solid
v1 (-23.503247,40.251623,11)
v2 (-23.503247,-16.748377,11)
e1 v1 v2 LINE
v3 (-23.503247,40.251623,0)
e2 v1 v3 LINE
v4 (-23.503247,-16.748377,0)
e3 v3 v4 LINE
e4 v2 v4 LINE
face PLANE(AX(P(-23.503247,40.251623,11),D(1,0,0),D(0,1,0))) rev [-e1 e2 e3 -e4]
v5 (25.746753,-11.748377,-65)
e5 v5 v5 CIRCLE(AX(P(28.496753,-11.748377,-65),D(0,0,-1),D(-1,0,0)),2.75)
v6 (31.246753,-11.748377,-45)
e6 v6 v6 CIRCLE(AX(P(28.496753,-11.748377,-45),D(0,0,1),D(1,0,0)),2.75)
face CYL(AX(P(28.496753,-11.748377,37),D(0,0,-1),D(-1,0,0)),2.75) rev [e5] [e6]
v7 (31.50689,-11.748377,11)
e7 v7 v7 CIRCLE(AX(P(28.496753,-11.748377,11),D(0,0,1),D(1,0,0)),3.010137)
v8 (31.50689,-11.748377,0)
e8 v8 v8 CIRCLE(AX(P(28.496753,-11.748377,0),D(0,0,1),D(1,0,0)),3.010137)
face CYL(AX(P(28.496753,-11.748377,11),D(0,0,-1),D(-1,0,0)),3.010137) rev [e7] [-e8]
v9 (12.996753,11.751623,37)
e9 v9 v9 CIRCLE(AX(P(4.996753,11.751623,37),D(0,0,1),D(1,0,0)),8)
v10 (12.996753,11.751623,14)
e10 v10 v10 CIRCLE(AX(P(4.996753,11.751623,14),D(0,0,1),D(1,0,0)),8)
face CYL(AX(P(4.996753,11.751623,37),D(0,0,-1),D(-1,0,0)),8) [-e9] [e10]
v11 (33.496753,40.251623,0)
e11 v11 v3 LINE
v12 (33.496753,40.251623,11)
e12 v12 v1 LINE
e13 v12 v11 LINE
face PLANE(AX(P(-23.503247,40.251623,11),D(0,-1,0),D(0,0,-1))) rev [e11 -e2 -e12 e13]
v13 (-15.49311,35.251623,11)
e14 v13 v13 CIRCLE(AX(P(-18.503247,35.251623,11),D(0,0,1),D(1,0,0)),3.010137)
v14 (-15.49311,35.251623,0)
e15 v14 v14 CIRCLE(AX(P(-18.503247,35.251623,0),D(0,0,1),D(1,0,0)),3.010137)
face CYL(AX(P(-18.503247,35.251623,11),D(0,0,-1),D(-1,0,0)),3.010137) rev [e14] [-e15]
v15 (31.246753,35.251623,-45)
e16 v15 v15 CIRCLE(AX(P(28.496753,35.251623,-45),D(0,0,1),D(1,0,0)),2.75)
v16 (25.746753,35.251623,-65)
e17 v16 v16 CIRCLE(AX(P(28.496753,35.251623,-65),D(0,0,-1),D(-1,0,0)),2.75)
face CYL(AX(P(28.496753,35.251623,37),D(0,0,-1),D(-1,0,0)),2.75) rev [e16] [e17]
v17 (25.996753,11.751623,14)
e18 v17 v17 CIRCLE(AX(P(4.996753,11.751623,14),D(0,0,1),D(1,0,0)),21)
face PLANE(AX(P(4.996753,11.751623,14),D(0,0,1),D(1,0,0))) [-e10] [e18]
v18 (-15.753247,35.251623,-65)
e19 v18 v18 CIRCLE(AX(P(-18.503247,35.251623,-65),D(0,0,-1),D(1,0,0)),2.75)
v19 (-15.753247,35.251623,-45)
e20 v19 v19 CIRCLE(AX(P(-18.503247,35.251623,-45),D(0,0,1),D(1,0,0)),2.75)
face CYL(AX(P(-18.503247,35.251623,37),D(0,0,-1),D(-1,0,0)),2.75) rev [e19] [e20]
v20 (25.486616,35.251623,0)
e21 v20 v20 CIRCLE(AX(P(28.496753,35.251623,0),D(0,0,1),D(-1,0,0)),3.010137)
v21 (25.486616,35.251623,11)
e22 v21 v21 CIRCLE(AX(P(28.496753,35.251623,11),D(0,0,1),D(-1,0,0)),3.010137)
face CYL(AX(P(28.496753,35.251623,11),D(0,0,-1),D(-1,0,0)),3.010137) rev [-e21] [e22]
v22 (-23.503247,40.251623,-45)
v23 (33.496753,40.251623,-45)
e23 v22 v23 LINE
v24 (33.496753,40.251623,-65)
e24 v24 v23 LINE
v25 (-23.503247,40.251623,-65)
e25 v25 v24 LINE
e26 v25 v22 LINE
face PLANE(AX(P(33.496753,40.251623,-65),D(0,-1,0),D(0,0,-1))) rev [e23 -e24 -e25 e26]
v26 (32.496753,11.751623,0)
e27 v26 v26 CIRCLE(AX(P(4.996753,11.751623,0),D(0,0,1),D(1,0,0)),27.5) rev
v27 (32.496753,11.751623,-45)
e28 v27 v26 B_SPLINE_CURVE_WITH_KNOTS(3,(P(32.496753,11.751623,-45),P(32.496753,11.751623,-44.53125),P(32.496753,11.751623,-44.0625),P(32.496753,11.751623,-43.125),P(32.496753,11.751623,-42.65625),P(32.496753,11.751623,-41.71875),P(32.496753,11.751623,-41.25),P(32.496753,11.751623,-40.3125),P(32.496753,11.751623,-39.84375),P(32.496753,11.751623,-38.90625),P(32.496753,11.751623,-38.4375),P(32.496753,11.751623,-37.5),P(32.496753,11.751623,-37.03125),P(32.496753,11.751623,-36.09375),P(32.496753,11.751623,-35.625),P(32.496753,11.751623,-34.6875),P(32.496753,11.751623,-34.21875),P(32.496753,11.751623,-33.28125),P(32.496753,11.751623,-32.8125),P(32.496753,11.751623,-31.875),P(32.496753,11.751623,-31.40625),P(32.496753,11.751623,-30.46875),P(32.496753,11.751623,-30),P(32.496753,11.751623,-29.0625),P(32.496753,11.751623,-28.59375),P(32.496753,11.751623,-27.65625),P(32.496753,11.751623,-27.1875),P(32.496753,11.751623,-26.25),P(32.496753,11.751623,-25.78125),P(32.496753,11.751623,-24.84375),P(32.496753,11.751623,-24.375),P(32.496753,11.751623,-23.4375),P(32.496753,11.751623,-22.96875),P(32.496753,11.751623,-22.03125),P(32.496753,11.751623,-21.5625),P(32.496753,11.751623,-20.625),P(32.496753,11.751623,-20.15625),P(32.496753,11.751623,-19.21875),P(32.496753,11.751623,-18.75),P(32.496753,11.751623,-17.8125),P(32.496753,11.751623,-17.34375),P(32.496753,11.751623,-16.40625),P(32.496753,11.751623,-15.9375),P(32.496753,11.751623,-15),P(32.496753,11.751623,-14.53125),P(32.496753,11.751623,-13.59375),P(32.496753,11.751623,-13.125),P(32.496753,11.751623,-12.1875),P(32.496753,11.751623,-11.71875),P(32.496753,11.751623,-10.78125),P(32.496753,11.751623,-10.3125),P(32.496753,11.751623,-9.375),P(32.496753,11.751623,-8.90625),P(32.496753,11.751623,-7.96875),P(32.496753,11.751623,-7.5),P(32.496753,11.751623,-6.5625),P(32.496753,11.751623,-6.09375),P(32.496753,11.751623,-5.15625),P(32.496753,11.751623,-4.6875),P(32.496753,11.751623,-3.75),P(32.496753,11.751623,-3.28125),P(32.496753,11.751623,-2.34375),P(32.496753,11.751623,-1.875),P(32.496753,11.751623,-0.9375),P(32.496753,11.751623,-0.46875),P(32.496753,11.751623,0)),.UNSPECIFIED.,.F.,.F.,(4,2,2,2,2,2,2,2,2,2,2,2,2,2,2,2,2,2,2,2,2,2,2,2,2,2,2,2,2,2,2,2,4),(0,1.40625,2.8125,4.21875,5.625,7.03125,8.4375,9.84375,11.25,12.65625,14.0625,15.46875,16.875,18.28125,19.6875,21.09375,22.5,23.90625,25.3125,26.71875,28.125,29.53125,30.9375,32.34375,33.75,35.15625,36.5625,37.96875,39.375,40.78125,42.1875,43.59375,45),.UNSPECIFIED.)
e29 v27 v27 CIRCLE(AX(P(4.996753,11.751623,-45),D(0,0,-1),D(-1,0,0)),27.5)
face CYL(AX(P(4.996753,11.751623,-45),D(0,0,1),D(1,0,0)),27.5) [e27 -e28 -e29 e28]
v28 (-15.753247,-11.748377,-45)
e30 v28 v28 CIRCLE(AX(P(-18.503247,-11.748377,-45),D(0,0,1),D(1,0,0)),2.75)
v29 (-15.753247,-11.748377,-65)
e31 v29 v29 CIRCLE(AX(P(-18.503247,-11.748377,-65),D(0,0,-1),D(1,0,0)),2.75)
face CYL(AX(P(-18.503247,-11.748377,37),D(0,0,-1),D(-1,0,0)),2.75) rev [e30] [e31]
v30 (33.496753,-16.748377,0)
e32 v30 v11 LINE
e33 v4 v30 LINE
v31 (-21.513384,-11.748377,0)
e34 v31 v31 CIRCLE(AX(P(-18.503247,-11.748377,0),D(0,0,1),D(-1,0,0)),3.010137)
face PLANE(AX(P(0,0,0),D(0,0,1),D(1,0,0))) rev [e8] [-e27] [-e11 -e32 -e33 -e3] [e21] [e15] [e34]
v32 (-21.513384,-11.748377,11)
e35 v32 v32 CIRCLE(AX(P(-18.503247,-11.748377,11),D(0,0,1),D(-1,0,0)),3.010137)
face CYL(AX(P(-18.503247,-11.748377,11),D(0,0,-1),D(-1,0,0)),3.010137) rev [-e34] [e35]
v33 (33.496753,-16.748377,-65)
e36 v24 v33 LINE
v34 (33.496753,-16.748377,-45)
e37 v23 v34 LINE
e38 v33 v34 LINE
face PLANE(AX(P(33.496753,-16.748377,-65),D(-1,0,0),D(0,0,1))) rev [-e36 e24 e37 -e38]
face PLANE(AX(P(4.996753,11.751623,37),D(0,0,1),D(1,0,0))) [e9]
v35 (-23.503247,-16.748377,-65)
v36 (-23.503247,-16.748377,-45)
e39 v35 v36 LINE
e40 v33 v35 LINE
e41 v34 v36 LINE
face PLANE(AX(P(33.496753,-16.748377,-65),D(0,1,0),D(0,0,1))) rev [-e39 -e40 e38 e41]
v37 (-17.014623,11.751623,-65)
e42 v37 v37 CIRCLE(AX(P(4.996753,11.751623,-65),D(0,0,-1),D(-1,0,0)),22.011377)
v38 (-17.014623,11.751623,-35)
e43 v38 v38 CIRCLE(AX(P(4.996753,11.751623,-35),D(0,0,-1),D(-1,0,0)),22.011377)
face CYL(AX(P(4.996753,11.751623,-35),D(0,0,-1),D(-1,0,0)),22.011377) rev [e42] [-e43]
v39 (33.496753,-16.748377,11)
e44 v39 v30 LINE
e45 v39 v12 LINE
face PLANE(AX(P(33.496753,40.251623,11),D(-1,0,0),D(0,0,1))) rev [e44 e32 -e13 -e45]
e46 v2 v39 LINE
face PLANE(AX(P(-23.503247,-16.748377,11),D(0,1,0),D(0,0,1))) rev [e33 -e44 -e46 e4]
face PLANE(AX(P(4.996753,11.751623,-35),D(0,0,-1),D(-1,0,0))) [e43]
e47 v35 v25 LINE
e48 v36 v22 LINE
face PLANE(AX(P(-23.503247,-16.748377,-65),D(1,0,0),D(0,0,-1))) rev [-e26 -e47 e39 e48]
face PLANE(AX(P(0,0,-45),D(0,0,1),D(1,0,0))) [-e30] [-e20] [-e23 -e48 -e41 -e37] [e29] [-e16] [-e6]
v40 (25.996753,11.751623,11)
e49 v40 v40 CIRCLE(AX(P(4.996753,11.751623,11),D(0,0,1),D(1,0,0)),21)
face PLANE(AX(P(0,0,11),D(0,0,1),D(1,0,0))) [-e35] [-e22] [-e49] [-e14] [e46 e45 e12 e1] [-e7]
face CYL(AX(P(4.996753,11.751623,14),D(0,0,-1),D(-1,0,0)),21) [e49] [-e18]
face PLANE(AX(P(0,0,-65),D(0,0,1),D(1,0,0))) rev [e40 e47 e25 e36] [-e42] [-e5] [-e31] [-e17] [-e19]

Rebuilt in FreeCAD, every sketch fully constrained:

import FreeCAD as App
import Part
import Sketcher
Q = App.Units.Quantity


def add_polygon(sketch, points):
    """Adds a closed chain of lines whose ends are joined by coincident constraints."""
    first, n = sketch.GeometryCount, len(points)
    for a, b in zip(points, points[1:] + points[:1]):
        sketch.addGeometry(Part.LineSegment(App.Vector(*a, 0), App.Vector(*b, 0)), False)
    for i in range(n):
        sketch.addConstraint(Sketcher.Constraint("Coincident", first + i, 2, first + (i + 1) % n, 1))

doc = App.newDocument("Part")
body = doc.addObject("PartDesign::Body", "Body")

# Sketch on XY plane
sketch1 = doc.addObject("Sketcher::SketchObject", "Sketch")
body.addObject(sketch1)
sketch1.AttachmentSupport = (doc.XY_Plane, [""])
sketch1.MapMode = "FlatFace"
add_polygon(sketch1, [(-23.503247, 40.251623), (-23.503247, -16.748377), (33.496753, -16.748377), (33.496753, 40.251623)])  # lines 0-3
sketch1.addGeometry(Part.Circle(App.Vector(-18.503247, -11.748377, 0), App.Vector(0, 0, 1), 3.010137), False)  # 4
sketch1.addGeometry(Part.Circle(App.Vector(28.496753, -11.748377, 0), App.Vector(0, 0, 1), 3.010137), False)  # 5
sketch1.addGeometry(Part.Circle(App.Vector(-18.503247, 35.251623, 0), App.Vector(0, 0, 1), 3.010137), False)  # 6
sketch1.addGeometry(Part.Circle(App.Vector(28.496753, 35.251623, 0), App.Vector(0, 0, 1), 3.010137), False)  # 7
sketch1.addConstraint(Sketcher.Constraint("Vertical", 0))
sketch1.addConstraint(Sketcher.Constraint("Horizontal", 1))
sketch1.addConstraint(Sketcher.Constraint("Vertical", 2))
sketch1.addConstraint(Sketcher.Constraint("Horizontal", 3))
sketch1.addConstraint(Sketcher.Constraint("Equal", 4, 5))
sketch1.addConstraint(Sketcher.Constraint("Equal", 5, 6))
sketch1.addConstraint(Sketcher.Constraint("Equal", 6, 7))
sketch1.addConstraint(Sketcher.Constraint("Horizontal", 4, 3, 5, 3))
sketch1.addConstraint(Sketcher.Constraint("Horizontal", 6, 3, 7, 3))
sketch1.addConstraint(Sketcher.Constraint("Vertical", 4, 3, 6, 3))
sketch1.addConstraint(Sketcher.Constraint("Vertical", 5, 3, 7, 3))
sketch1.addConstraint(Sketcher.Constraint("Equal", 3, 0))
sketch1.addConstraint(Sketcher.Constraint("DistanceX", 1, 1, 1, 2, Q("57 mm")))
sketch1.addConstraint(Sketcher.Constraint("DistanceX", 4, 3, 5, 3, Q("47 mm")))
sketch1.addConstraint(Sketcher.Constraint("DistanceY", 4, 3, 6, 3, Q("47 mm")))
sketch1.addConstraint(Sketcher.Constraint("DistanceX", 0, 2, 4, 3, Q("5 mm")))
sketch1.addConstraint(Sketcher.Constraint("DistanceY", 0, 2, 4, 3, Q("5 mm")))
sketch1.addConstraint(Sketcher.Constraint("Diameter", 4, Q("6.020274 mm")))
sketch1.addConstraint(Sketcher.Constraint("DistanceX", 4, 3, -1, 1, Q("18.503247 mm")))
sketch1.addConstraint(Sketcher.Constraint("DistanceY", 4, 3, -1, 1, Q("11.748377 mm")))
pad1 = doc.addObject("PartDesign::Pad", "Pad")
body.addObject(pad1)
pad1.Profile = sketch1
pad1.Length = 11

# Sketch on XY plane
sketch2 = doc.addObject("Sketcher::SketchObject", "Sketch001")
body.addObject(sketch2)
sketch2.AttachmentSupport = (doc.XY_Plane, [""])
sketch2.MapMode = "FlatFace"
sketch2.AttachmentOffset = App.Placement(App.Vector(0, 0, 11), App.Rotation())
sketch2.addGeometry(Part.Circle(App.Vector(4.996753, 11.751623, 0), App.Vector(0, 0, 1), 21), False)
sketch2.addConstraint(Sketcher.Constraint("Diameter", 0, Q("42 mm")))
sketch2.addConstraint(Sketcher.Constraint("DistanceX", -1, 1, 0, 3, Q("4.996753 mm")))
sketch2.addConstraint(Sketcher.Constraint("DistanceY", -1, 1, 0, 3, Q("11.751623 mm")))
pad2 = doc.addObject("PartDesign::Pad", "Pad001")
body.addObject(pad2)
pad2.Profile = sketch2
pad2.Length = 3

# Sketch on XY plane
sketch3 = doc.addObject("Sketcher::SketchObject", "Sketch002")
body.addObject(sketch3)
sketch3.AttachmentSupport = (doc.XY_Plane, [""])
sketch3.MapMode = "FlatFace"
sketch3.AttachmentOffset = App.Placement(App.Vector(0, 0, 14), App.Rotation())
sketch3.addGeometry(Part.Circle(App.Vector(4.996753, 11.751623, 0), App.Vector(0, 0, 1), 8), False)
sketch3.addConstraint(Sketcher.Constraint("Diameter", 0, Q("16 mm")))
sketch3.addConstraint(Sketcher.Constraint("DistanceX", -1, 1, 0, 3, Q("4.996753 mm")))
sketch3.addConstraint(Sketcher.Constraint("DistanceY", -1, 1, 0, 3, Q("11.751623 mm")))
pad3 = doc.addObject("PartDesign::Pad", "Pad002")
body.addObject(pad3)
pad3.Profile = sketch3
pad3.Length = 23

# Sketch on XY plane
sketch4 = doc.addObject("Sketcher::SketchObject", "Sketch003")
body.addObject(sketch4)
sketch4.AttachmentSupport = (doc.XY_Plane, [""])
sketch4.MapMode = "FlatFace"
sketch4.addGeometry(Part.Circle(App.Vector(4.996753, 11.751623, 0), App.Vector(0, 0, 1), 27.5), False)
sketch4.addConstraint(Sketcher.Constraint("Diameter", 0, Q("55 mm")))
sketch4.addConstraint(Sketcher.Constraint("DistanceX", -1, 1, 0, 3, Q("4.996753 mm")))
sketch4.addConstraint(Sketcher.Constraint("DistanceY", -1, 1, 0, 3, Q("11.751623 mm")))
pad4 = doc.addObject("PartDesign::Pad", "Pad003")
body.addObject(pad4)
pad4.Profile = sketch4
pad4.Length = 45
pad4.Reversed = True

# Sketch on XY plane
sketch5 = doc.addObject("Sketcher::SketchObject", "Sketch004")
body.addObject(sketch5)
sketch5.AttachmentSupport = (doc.XY_Plane, [""])
sketch5.MapMode = "FlatFace"
sketch5.AttachmentOffset = App.Placement(App.Vector(0, 0, -45), App.Rotation())
add_polygon(sketch5, [(33.496753, 40.251623), (33.496753, -16.748377), (-23.503247, -16.748377), (-23.503247, 40.251623)])  # lines 0-3
sketch5.addConstraint(Sketcher.Constraint("Vertical", 0))
sketch5.addConstraint(Sketcher.Constraint("Horizontal", 1))
sketch5.addConstraint(Sketcher.Constraint("Vertical", 2))
sketch5.addConstraint(Sketcher.Constraint("Horizontal", 3))
sketch5.addConstraint(Sketcher.Constraint("Equal", 3, 0))
sketch5.addConstraint(Sketcher.Constraint("DistanceX", 1, 2, 1, 1, Q("57 mm")))
sketch5.addConstraint(Sketcher.Constraint("DistanceX", -1, 1, 0, 2, Q("33.496753 mm")))
sketch5.addConstraint(Sketcher.Constraint("DistanceY", 0, 2, -1, 1, Q("16.748377 mm")))
pad5 = doc.addObject("PartDesign::Pad", "Pad004")
body.addObject(pad5)
pad5.Profile = sketch5
pad5.Length = 20
pad5.Reversed = True

# Sketch on XY plane
sketch6 = doc.addObject("Sketcher::SketchObject", "Sketch005")
body.addObject(sketch6)
sketch6.AttachmentSupport = (doc.XY_Plane, [""])
sketch6.MapMode = "FlatFace"
sketch6.AttachmentOffset = App.Placement(App.Vector(0, 0, -65), App.Rotation())
sketch6.addGeometry(Part.Circle(App.Vector(28.496753, 35.251623, 0), App.Vector(0, 0, 1), 2.75), False)
sketch6.addGeometry(Part.Circle(App.Vector(-18.503247, 35.251623, 0), App.Vector(0, 0, 1), 2.75), False)
sketch6.addGeometry(Part.Circle(App.Vector(-18.503247, -11.748377, 0), App.Vector(0, 0, 1), 2.75), False)
sketch6.addGeometry(Part.Circle(App.Vector(28.496753, -11.748377, 0), App.Vector(0, 0, 1), 2.75), False)
sketch6.addConstraint(Sketcher.Constraint("Equal", 0, 1))
sketch6.addConstraint(Sketcher.Constraint("Equal", 1, 2))
sketch6.addConstraint(Sketcher.Constraint("Equal", 2, 3))
sketch6.addConstraint(Sketcher.Constraint("Horizontal", 0, 3, 1, 3))
sketch6.addConstraint(Sketcher.Constraint("Horizontal", 2, 3, 3, 3))
sketch6.addConstraint(Sketcher.Constraint("Vertical", 1, 3, 2, 3))
sketch6.addConstraint(Sketcher.Constraint("Vertical", 0, 3, 3, 3))
sketch6.addConstraint(Sketcher.Constraint("Diameter", 0, Q("5.5 mm")))
sketch6.addConstraint(Sketcher.Constraint("DistanceX", 1, 3, 0, 3, Q("47 mm")))
sketch6.addConstraint(Sketcher.Constraint("DistanceY", 2, 3, 1, 3, Q("47 mm")))
sketch6.addConstraint(Sketcher.Constraint("DistanceX", -1, 1, 0, 3, Q("28.496753 mm")))
sketch6.addConstraint(Sketcher.Constraint("DistanceY", -1, 1, 0, 3, Q("35.251623 mm")))
pocket1 = doc.addObject("PartDesign::Pocket", "Pocket")
body.addObject(pocket1)
pocket1.Profile = sketch6
pocket1.Type = "ThroughAll"
pocket1.Reversed = True

# Sketch on XY plane
sketch7 = doc.addObject("Sketcher::SketchObject", "Sketch006")
body.addObject(sketch7)
sketch7.AttachmentSupport = (doc.XY_Plane, [""])
sketch7.MapMode = "FlatFace"
sketch7.AttachmentOffset = App.Placement(App.Vector(0, 0, -65), App.Rotation())
sketch7.addGeometry(Part.Circle(App.Vector(4.996753, 11.751623, 0), App.Vector(0, 0, 1), 22.011377), False)
sketch7.addConstraint(Sketcher.Constraint("Diameter", 0, Q("44.022753 mm")))
sketch7.addConstraint(Sketcher.Constraint("DistanceX", -1, 1, 0, 3, Q("4.996753 mm")))
sketch7.addConstraint(Sketcher.Constraint("DistanceY", -1, 1, 0, 3, Q("11.751623 mm")))
pocket2 = doc.addObject("PartDesign::Pocket", "Pocket001")
body.addObject(pocket2)
pocket2.Profile = sketch7
pocket2.Length = 30
pocket2.Reversed = True

doc.recompute()
